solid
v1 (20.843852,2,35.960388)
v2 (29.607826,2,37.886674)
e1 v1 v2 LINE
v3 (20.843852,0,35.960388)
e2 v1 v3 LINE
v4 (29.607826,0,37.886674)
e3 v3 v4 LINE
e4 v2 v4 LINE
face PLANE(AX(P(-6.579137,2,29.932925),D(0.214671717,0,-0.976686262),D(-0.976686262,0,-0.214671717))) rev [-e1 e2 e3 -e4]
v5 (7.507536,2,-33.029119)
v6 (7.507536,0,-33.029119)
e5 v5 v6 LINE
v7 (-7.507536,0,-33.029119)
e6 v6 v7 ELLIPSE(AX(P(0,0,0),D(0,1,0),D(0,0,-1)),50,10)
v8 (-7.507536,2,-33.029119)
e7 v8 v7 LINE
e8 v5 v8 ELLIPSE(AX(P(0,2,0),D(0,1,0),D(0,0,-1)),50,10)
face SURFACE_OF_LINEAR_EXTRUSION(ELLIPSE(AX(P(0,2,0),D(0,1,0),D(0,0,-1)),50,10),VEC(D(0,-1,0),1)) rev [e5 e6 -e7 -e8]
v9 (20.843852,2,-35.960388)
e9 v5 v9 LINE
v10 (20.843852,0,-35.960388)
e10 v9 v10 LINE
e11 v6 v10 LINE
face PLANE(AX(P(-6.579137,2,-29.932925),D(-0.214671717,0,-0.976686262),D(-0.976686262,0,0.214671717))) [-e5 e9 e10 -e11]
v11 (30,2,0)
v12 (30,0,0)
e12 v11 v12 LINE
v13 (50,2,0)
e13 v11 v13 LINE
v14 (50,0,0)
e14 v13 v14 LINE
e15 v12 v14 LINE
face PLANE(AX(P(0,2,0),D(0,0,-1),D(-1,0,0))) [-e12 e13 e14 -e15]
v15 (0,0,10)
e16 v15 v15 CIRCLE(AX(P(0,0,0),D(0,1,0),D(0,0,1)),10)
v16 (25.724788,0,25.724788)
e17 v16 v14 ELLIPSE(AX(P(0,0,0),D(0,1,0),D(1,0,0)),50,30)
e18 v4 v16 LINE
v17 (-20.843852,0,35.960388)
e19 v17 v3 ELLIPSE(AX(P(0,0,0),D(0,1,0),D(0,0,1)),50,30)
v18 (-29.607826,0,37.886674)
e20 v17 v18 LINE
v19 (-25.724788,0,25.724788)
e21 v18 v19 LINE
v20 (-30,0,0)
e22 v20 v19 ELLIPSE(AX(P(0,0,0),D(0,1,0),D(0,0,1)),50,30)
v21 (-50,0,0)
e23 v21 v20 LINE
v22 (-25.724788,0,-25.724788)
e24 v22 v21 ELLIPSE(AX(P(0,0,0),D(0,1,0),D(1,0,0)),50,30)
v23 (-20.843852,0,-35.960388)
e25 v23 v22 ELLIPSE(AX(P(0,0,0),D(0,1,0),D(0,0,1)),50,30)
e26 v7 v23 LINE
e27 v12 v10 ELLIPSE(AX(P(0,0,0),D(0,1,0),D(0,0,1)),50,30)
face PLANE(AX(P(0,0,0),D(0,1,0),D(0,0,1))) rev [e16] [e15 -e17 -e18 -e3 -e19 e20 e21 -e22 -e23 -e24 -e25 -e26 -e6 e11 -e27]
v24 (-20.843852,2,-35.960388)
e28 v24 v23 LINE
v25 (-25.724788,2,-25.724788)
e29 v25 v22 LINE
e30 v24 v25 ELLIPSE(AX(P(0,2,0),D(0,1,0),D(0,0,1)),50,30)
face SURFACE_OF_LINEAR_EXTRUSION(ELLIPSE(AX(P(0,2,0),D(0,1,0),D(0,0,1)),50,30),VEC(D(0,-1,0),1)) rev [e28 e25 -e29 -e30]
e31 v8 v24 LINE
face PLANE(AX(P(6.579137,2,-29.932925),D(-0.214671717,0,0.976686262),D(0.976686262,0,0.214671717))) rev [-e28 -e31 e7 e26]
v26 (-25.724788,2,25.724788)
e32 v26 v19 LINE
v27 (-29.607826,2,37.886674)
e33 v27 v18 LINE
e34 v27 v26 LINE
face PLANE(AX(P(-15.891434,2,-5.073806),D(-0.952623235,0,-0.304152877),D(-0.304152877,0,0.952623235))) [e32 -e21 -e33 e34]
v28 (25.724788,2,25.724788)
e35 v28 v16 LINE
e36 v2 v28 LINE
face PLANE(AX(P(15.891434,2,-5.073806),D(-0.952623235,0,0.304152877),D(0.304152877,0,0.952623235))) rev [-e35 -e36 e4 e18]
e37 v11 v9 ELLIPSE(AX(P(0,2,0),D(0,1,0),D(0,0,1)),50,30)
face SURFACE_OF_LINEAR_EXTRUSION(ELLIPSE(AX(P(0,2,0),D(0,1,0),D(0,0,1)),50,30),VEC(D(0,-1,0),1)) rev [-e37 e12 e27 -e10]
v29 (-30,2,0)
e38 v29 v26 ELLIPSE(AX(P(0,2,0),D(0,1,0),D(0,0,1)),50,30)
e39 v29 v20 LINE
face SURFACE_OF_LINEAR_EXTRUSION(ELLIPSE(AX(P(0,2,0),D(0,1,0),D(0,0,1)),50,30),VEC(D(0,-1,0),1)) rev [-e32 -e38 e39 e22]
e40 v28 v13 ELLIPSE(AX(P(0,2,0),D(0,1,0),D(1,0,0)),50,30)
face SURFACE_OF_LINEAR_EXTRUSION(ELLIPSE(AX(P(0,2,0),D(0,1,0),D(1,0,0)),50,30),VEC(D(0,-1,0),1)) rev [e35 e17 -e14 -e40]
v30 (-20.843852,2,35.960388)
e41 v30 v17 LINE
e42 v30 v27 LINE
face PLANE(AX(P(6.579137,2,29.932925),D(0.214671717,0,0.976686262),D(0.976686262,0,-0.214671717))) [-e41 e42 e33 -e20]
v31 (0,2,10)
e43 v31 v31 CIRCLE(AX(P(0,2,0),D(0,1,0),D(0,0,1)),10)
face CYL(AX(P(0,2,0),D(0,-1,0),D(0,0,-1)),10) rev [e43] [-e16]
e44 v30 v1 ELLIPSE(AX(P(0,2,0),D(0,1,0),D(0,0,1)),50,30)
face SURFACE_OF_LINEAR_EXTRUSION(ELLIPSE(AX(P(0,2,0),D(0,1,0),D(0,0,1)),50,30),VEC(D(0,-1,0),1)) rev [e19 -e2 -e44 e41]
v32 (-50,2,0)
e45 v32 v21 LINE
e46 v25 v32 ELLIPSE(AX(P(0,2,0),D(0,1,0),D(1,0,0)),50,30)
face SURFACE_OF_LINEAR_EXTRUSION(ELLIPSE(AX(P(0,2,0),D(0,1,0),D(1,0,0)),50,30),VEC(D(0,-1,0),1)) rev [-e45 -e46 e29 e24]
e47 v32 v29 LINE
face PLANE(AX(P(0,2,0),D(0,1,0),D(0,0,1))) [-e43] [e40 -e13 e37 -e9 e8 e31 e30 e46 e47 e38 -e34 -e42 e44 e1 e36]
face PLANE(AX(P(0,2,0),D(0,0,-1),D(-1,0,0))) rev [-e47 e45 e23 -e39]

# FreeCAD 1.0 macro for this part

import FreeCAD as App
import Part
import Sketcher

doc = App.newDocument("Part")
body = doc.addObject("PartDesign::Body", "Body")

# Sketch on XZ plane
sketch1 = body.newObject("Sketcher::SketchObject", "Sketch")
sketch1.AttachmentSupport = (doc.getObject("XZ_Plane"), [""])
sketch1.MapMode = "FlatFace"
sketch1.addGeometry([
    Part.BSplineCurve([App.Vector(25.724788, 25.724788, 0), App.Vector(50, 16.985711, 0), App.Vector(50, 0, 0)], [3, 3], [5.252808481, 6.283185307], False, 2, [1, 0.870199907, 1], False),  # 0
    Part.LineSegment(App.Vector(50, 0, 0), App.Vector(30, 0, 0)),  # 1
    Part.BSplineCurve([App.Vector(30, 0, 0), App.Vector(30, -13.849198, 0), App.Vector(25.724788, -25.724788, 0)], [3, 3], [1.570796327, 2.111215827], False, 2, [1, 0.963714928, 1], False),  # 2
    Part.BSplineCurve([App.Vector(25.724788, -25.724788, 0), App.Vector(23.689274, -31.378993, 0), App.Vector(20.843852, -35.960388, 0)], [3, 3], [2.111215827, 2.373457716], False, 2, [1, 0.991415958, 1], False),  # 3
    Part.LineSegment(App.Vector(20.843852, -35.960388, 0), App.Vector(7.507536, -33.029119, 0)),  # 4
    Part.BSplineCurve([App.Vector(7.507536, -33.029119, 0), App.Vector(5.218866, -46.034514, 0), App.Vector(1.811566, -49.172713, 0)], [3, 3], [5.433983203, 6.101022879], False, 2, [1, 0.944895907, 1], False),  # 5
    Part.BSplineCurve([App.Vector(1.811566, -49.172713, 0), App.Vector(1.453765, -49.502256, 0), App.Vector(1.092219, -49.751126, 0), App.Vector(0.728402, -49.917271, 0), App.Vector(0.363821, -50, 0), App.Vector(-0.363821, -50, 0), App.Vector(-0.728402, -49.917271, 0), App.Vector(-1.092219, -49.751126, 0), App.Vector(-1.453765, -49.502256, 0), App.Vector(-1.811566, -49.172713, 0)], [6, 4, 6], [6.101022879, 6.283185307, 6.465347735], False, 5, [1, 1, 0.999993128, 0.999993128, 1, 1, 0.999993128, 0.999993128, 1, 1], False),  # 6
    Part.BSplineCurve([App.Vector(-1.811566, -49.172713, 0), App.Vector(-5.218866, -46.034514, 0), App.Vector(-7.507536, -33.029119, 0)], [3, 3], [0.182162428, 0.849202104], False, 2, [1, 0.944895907, 1], False),  # 7
    Part.LineSegment(App.Vector(-7.507536, -33.029119, 0), App.Vector(-20.843852, -35.960388, 0)),  # 8
    Part.BSplineCurve([App.Vector(-20.843852, -35.960388, 0), App.Vector(-23.689274, -31.378993, 0), App.Vector(-25.724788, -25.724788, 0)], [3, 3], [3.909727591, 4.17196948], False, 2, [1, 0.991415958, 1], False),  # 9
    Part.BSplineCurve([App.Vector(-25.724788, -25.724788, 0), App.Vector(-50, -16.985711, 0), App.Vector(-50, 0, 0)], [3, 3], [2.111215827, 3.141592654], False, 2, [1, 0.870199907, 1], False),  # 10
    Part.LineSegment(App.Vector(-50, 0, 0), App.Vector(-30, 0, 0)),  # 11
    Part.BSplineCurve([App.Vector(-30, 0, 0), App.Vector(-30, 13.849198, 0), App.Vector(-25.724788, 25.724788, 0)], [3, 3], [4.712388978, 5.252808481], False, 2, [1, 0.963714928, 1], False),  # 12
    Part.LineSegment(App.Vector(-25.724788, 25.724788, 0), App.Vector(-29.607826, 37.886674, 0)),  # 13
    Part.LineSegment(App.Vector(-29.607826, 37.886674, 0), App.Vector(-20.843852, 35.960388, 0)),  # 14
    Part.BSplineCurve([App.Vector(-20.843852, 35.960388, 0), App.Vector(-12.774167, 48.953336, 0), App.Vector(-1.569287, 49.931546, 0)], [3, 3], [5.51505037, 6.230851865], False, 2, [1, 0.936634273, 1], False),  # 15
    Part.BSplineCurve([App.Vector(-1.569287, 49.931546, 0), App.Vector(-1.255752, 49.958918, 0), App.Vector(-0.941948, 49.979459, 0), App.Vector(-0.627983, 49.993155, 0), App.Vector(-0.313965, 50, 0), App.Vector(0.313965, 50, 0), App.Vector(0.627983, 49.993155, 0), App.Vector(0.941948, 49.979459, 0), App.Vector(1.255752, 49.958918, 0), App.Vector(1.569287, 49.931546, 0)], [6, 4, 6], [6.230851865, 6.283185307, 6.335518749], False, 5, [1, 1, 0.999999953, 0.999999953, 1, 1, 0.999999953, 0.999999953, 1, 1], False),  # 16
    Part.BSplineCurve([App.Vector(1.569287, 49.931546, 0), App.Vector(12.774167, 48.953336, 0), App.Vector(20.843852, 35.960388, 0)], [3, 3], [0.052333442, 0.768134938], False, 2, [1, 0.936634273, 1], False),  # 17
    Part.LineSegment(App.Vector(20.843852, 35.960388, 0), App.Vector(29.607826, 37.886674, 0)),  # 18
    Part.LineSegment(App.Vector(29.607826, 37.886674, 0), App.Vector(25.724788, 25.724788, 0)),  # 19
    Part.Circle(App.Vector(0, 0, 0), App.Vector(0, 0, 1), 10),  # 20
], False)
sketch1.addConstraint([
    Sketcher.Constraint("Block", 0),
    Sketcher.Constraint("Block", 2),
    Sketcher.Constraint("Block", 3),
    Sketcher.Constraint("Block", 5),
    Sketcher.Constraint("Block", 6),
    Sketcher.Constraint("Block", 7),
    Sketcher.Constraint("Block", 9),
    Sketcher.Constraint("Block", 10),
    Sketcher.Constraint("Block", 12),
    Sketcher.Constraint("Block", 15),
    Sketcher.Constraint("Block", 16),
    Sketcher.Constraint("Block", 17),
    Sketcher.Constraint("Coincident", 0, 2, 1, 1),
    Sketcher.Constraint("Coincident", 1, 2, 2, 1),
    Sketcher.Constraint("Coincident", 3, 2, 4, 1),
    Sketcher.Constraint("Coincident", 4, 2, 5, 1),
    Sketcher.Constraint("Coincident", 7, 2, 8, 1),
    Sketcher.Constraint("Coincident", 8, 2, 9, 1),
    Sketcher.Constraint("Coincident", 10, 2, 11, 1),
    Sketcher.Constraint("Coincident", 11, 2, 12, 1),
    Sketcher.Constraint("Coincident", 12, 2, 13, 1),
    Sketcher.Constraint("Coincident", 13, 2, 14, 1),
    Sketcher.Constraint("Coincident", 14, 2, 15, 1),
    Sketcher.Constraint("Coincident", 17, 2, 18, 1),
    Sketcher.Constraint("Coincident", 18, 2, 19, 1),
    Sketcher.Constraint("Coincident", 19, 2, 0, 1),
    Sketcher.Constraint("Coincident", 20, 3, -1, 1),
    Sketcher.Constraint("Diameter", 20, 20.0),
    Sketcher.Constraint("DistanceY", 8, 2, 13, 2, 73.847062),
    Sketcher.Constraint("DistanceX", 13, 2, 4, 2, 37.115362),
    Sketcher.Constraint("DistanceX", 14, 2, 18, 2, 50.451679),
    Sketcher.Constraint("Distance", 18, 8.973172),
])
pad1 = body.newObject("PartDesign::Pad", "Pad")
pad1.Profile = sketch1
pad1.Length = 2
pad1.Reversed = True

doc.recompute()
